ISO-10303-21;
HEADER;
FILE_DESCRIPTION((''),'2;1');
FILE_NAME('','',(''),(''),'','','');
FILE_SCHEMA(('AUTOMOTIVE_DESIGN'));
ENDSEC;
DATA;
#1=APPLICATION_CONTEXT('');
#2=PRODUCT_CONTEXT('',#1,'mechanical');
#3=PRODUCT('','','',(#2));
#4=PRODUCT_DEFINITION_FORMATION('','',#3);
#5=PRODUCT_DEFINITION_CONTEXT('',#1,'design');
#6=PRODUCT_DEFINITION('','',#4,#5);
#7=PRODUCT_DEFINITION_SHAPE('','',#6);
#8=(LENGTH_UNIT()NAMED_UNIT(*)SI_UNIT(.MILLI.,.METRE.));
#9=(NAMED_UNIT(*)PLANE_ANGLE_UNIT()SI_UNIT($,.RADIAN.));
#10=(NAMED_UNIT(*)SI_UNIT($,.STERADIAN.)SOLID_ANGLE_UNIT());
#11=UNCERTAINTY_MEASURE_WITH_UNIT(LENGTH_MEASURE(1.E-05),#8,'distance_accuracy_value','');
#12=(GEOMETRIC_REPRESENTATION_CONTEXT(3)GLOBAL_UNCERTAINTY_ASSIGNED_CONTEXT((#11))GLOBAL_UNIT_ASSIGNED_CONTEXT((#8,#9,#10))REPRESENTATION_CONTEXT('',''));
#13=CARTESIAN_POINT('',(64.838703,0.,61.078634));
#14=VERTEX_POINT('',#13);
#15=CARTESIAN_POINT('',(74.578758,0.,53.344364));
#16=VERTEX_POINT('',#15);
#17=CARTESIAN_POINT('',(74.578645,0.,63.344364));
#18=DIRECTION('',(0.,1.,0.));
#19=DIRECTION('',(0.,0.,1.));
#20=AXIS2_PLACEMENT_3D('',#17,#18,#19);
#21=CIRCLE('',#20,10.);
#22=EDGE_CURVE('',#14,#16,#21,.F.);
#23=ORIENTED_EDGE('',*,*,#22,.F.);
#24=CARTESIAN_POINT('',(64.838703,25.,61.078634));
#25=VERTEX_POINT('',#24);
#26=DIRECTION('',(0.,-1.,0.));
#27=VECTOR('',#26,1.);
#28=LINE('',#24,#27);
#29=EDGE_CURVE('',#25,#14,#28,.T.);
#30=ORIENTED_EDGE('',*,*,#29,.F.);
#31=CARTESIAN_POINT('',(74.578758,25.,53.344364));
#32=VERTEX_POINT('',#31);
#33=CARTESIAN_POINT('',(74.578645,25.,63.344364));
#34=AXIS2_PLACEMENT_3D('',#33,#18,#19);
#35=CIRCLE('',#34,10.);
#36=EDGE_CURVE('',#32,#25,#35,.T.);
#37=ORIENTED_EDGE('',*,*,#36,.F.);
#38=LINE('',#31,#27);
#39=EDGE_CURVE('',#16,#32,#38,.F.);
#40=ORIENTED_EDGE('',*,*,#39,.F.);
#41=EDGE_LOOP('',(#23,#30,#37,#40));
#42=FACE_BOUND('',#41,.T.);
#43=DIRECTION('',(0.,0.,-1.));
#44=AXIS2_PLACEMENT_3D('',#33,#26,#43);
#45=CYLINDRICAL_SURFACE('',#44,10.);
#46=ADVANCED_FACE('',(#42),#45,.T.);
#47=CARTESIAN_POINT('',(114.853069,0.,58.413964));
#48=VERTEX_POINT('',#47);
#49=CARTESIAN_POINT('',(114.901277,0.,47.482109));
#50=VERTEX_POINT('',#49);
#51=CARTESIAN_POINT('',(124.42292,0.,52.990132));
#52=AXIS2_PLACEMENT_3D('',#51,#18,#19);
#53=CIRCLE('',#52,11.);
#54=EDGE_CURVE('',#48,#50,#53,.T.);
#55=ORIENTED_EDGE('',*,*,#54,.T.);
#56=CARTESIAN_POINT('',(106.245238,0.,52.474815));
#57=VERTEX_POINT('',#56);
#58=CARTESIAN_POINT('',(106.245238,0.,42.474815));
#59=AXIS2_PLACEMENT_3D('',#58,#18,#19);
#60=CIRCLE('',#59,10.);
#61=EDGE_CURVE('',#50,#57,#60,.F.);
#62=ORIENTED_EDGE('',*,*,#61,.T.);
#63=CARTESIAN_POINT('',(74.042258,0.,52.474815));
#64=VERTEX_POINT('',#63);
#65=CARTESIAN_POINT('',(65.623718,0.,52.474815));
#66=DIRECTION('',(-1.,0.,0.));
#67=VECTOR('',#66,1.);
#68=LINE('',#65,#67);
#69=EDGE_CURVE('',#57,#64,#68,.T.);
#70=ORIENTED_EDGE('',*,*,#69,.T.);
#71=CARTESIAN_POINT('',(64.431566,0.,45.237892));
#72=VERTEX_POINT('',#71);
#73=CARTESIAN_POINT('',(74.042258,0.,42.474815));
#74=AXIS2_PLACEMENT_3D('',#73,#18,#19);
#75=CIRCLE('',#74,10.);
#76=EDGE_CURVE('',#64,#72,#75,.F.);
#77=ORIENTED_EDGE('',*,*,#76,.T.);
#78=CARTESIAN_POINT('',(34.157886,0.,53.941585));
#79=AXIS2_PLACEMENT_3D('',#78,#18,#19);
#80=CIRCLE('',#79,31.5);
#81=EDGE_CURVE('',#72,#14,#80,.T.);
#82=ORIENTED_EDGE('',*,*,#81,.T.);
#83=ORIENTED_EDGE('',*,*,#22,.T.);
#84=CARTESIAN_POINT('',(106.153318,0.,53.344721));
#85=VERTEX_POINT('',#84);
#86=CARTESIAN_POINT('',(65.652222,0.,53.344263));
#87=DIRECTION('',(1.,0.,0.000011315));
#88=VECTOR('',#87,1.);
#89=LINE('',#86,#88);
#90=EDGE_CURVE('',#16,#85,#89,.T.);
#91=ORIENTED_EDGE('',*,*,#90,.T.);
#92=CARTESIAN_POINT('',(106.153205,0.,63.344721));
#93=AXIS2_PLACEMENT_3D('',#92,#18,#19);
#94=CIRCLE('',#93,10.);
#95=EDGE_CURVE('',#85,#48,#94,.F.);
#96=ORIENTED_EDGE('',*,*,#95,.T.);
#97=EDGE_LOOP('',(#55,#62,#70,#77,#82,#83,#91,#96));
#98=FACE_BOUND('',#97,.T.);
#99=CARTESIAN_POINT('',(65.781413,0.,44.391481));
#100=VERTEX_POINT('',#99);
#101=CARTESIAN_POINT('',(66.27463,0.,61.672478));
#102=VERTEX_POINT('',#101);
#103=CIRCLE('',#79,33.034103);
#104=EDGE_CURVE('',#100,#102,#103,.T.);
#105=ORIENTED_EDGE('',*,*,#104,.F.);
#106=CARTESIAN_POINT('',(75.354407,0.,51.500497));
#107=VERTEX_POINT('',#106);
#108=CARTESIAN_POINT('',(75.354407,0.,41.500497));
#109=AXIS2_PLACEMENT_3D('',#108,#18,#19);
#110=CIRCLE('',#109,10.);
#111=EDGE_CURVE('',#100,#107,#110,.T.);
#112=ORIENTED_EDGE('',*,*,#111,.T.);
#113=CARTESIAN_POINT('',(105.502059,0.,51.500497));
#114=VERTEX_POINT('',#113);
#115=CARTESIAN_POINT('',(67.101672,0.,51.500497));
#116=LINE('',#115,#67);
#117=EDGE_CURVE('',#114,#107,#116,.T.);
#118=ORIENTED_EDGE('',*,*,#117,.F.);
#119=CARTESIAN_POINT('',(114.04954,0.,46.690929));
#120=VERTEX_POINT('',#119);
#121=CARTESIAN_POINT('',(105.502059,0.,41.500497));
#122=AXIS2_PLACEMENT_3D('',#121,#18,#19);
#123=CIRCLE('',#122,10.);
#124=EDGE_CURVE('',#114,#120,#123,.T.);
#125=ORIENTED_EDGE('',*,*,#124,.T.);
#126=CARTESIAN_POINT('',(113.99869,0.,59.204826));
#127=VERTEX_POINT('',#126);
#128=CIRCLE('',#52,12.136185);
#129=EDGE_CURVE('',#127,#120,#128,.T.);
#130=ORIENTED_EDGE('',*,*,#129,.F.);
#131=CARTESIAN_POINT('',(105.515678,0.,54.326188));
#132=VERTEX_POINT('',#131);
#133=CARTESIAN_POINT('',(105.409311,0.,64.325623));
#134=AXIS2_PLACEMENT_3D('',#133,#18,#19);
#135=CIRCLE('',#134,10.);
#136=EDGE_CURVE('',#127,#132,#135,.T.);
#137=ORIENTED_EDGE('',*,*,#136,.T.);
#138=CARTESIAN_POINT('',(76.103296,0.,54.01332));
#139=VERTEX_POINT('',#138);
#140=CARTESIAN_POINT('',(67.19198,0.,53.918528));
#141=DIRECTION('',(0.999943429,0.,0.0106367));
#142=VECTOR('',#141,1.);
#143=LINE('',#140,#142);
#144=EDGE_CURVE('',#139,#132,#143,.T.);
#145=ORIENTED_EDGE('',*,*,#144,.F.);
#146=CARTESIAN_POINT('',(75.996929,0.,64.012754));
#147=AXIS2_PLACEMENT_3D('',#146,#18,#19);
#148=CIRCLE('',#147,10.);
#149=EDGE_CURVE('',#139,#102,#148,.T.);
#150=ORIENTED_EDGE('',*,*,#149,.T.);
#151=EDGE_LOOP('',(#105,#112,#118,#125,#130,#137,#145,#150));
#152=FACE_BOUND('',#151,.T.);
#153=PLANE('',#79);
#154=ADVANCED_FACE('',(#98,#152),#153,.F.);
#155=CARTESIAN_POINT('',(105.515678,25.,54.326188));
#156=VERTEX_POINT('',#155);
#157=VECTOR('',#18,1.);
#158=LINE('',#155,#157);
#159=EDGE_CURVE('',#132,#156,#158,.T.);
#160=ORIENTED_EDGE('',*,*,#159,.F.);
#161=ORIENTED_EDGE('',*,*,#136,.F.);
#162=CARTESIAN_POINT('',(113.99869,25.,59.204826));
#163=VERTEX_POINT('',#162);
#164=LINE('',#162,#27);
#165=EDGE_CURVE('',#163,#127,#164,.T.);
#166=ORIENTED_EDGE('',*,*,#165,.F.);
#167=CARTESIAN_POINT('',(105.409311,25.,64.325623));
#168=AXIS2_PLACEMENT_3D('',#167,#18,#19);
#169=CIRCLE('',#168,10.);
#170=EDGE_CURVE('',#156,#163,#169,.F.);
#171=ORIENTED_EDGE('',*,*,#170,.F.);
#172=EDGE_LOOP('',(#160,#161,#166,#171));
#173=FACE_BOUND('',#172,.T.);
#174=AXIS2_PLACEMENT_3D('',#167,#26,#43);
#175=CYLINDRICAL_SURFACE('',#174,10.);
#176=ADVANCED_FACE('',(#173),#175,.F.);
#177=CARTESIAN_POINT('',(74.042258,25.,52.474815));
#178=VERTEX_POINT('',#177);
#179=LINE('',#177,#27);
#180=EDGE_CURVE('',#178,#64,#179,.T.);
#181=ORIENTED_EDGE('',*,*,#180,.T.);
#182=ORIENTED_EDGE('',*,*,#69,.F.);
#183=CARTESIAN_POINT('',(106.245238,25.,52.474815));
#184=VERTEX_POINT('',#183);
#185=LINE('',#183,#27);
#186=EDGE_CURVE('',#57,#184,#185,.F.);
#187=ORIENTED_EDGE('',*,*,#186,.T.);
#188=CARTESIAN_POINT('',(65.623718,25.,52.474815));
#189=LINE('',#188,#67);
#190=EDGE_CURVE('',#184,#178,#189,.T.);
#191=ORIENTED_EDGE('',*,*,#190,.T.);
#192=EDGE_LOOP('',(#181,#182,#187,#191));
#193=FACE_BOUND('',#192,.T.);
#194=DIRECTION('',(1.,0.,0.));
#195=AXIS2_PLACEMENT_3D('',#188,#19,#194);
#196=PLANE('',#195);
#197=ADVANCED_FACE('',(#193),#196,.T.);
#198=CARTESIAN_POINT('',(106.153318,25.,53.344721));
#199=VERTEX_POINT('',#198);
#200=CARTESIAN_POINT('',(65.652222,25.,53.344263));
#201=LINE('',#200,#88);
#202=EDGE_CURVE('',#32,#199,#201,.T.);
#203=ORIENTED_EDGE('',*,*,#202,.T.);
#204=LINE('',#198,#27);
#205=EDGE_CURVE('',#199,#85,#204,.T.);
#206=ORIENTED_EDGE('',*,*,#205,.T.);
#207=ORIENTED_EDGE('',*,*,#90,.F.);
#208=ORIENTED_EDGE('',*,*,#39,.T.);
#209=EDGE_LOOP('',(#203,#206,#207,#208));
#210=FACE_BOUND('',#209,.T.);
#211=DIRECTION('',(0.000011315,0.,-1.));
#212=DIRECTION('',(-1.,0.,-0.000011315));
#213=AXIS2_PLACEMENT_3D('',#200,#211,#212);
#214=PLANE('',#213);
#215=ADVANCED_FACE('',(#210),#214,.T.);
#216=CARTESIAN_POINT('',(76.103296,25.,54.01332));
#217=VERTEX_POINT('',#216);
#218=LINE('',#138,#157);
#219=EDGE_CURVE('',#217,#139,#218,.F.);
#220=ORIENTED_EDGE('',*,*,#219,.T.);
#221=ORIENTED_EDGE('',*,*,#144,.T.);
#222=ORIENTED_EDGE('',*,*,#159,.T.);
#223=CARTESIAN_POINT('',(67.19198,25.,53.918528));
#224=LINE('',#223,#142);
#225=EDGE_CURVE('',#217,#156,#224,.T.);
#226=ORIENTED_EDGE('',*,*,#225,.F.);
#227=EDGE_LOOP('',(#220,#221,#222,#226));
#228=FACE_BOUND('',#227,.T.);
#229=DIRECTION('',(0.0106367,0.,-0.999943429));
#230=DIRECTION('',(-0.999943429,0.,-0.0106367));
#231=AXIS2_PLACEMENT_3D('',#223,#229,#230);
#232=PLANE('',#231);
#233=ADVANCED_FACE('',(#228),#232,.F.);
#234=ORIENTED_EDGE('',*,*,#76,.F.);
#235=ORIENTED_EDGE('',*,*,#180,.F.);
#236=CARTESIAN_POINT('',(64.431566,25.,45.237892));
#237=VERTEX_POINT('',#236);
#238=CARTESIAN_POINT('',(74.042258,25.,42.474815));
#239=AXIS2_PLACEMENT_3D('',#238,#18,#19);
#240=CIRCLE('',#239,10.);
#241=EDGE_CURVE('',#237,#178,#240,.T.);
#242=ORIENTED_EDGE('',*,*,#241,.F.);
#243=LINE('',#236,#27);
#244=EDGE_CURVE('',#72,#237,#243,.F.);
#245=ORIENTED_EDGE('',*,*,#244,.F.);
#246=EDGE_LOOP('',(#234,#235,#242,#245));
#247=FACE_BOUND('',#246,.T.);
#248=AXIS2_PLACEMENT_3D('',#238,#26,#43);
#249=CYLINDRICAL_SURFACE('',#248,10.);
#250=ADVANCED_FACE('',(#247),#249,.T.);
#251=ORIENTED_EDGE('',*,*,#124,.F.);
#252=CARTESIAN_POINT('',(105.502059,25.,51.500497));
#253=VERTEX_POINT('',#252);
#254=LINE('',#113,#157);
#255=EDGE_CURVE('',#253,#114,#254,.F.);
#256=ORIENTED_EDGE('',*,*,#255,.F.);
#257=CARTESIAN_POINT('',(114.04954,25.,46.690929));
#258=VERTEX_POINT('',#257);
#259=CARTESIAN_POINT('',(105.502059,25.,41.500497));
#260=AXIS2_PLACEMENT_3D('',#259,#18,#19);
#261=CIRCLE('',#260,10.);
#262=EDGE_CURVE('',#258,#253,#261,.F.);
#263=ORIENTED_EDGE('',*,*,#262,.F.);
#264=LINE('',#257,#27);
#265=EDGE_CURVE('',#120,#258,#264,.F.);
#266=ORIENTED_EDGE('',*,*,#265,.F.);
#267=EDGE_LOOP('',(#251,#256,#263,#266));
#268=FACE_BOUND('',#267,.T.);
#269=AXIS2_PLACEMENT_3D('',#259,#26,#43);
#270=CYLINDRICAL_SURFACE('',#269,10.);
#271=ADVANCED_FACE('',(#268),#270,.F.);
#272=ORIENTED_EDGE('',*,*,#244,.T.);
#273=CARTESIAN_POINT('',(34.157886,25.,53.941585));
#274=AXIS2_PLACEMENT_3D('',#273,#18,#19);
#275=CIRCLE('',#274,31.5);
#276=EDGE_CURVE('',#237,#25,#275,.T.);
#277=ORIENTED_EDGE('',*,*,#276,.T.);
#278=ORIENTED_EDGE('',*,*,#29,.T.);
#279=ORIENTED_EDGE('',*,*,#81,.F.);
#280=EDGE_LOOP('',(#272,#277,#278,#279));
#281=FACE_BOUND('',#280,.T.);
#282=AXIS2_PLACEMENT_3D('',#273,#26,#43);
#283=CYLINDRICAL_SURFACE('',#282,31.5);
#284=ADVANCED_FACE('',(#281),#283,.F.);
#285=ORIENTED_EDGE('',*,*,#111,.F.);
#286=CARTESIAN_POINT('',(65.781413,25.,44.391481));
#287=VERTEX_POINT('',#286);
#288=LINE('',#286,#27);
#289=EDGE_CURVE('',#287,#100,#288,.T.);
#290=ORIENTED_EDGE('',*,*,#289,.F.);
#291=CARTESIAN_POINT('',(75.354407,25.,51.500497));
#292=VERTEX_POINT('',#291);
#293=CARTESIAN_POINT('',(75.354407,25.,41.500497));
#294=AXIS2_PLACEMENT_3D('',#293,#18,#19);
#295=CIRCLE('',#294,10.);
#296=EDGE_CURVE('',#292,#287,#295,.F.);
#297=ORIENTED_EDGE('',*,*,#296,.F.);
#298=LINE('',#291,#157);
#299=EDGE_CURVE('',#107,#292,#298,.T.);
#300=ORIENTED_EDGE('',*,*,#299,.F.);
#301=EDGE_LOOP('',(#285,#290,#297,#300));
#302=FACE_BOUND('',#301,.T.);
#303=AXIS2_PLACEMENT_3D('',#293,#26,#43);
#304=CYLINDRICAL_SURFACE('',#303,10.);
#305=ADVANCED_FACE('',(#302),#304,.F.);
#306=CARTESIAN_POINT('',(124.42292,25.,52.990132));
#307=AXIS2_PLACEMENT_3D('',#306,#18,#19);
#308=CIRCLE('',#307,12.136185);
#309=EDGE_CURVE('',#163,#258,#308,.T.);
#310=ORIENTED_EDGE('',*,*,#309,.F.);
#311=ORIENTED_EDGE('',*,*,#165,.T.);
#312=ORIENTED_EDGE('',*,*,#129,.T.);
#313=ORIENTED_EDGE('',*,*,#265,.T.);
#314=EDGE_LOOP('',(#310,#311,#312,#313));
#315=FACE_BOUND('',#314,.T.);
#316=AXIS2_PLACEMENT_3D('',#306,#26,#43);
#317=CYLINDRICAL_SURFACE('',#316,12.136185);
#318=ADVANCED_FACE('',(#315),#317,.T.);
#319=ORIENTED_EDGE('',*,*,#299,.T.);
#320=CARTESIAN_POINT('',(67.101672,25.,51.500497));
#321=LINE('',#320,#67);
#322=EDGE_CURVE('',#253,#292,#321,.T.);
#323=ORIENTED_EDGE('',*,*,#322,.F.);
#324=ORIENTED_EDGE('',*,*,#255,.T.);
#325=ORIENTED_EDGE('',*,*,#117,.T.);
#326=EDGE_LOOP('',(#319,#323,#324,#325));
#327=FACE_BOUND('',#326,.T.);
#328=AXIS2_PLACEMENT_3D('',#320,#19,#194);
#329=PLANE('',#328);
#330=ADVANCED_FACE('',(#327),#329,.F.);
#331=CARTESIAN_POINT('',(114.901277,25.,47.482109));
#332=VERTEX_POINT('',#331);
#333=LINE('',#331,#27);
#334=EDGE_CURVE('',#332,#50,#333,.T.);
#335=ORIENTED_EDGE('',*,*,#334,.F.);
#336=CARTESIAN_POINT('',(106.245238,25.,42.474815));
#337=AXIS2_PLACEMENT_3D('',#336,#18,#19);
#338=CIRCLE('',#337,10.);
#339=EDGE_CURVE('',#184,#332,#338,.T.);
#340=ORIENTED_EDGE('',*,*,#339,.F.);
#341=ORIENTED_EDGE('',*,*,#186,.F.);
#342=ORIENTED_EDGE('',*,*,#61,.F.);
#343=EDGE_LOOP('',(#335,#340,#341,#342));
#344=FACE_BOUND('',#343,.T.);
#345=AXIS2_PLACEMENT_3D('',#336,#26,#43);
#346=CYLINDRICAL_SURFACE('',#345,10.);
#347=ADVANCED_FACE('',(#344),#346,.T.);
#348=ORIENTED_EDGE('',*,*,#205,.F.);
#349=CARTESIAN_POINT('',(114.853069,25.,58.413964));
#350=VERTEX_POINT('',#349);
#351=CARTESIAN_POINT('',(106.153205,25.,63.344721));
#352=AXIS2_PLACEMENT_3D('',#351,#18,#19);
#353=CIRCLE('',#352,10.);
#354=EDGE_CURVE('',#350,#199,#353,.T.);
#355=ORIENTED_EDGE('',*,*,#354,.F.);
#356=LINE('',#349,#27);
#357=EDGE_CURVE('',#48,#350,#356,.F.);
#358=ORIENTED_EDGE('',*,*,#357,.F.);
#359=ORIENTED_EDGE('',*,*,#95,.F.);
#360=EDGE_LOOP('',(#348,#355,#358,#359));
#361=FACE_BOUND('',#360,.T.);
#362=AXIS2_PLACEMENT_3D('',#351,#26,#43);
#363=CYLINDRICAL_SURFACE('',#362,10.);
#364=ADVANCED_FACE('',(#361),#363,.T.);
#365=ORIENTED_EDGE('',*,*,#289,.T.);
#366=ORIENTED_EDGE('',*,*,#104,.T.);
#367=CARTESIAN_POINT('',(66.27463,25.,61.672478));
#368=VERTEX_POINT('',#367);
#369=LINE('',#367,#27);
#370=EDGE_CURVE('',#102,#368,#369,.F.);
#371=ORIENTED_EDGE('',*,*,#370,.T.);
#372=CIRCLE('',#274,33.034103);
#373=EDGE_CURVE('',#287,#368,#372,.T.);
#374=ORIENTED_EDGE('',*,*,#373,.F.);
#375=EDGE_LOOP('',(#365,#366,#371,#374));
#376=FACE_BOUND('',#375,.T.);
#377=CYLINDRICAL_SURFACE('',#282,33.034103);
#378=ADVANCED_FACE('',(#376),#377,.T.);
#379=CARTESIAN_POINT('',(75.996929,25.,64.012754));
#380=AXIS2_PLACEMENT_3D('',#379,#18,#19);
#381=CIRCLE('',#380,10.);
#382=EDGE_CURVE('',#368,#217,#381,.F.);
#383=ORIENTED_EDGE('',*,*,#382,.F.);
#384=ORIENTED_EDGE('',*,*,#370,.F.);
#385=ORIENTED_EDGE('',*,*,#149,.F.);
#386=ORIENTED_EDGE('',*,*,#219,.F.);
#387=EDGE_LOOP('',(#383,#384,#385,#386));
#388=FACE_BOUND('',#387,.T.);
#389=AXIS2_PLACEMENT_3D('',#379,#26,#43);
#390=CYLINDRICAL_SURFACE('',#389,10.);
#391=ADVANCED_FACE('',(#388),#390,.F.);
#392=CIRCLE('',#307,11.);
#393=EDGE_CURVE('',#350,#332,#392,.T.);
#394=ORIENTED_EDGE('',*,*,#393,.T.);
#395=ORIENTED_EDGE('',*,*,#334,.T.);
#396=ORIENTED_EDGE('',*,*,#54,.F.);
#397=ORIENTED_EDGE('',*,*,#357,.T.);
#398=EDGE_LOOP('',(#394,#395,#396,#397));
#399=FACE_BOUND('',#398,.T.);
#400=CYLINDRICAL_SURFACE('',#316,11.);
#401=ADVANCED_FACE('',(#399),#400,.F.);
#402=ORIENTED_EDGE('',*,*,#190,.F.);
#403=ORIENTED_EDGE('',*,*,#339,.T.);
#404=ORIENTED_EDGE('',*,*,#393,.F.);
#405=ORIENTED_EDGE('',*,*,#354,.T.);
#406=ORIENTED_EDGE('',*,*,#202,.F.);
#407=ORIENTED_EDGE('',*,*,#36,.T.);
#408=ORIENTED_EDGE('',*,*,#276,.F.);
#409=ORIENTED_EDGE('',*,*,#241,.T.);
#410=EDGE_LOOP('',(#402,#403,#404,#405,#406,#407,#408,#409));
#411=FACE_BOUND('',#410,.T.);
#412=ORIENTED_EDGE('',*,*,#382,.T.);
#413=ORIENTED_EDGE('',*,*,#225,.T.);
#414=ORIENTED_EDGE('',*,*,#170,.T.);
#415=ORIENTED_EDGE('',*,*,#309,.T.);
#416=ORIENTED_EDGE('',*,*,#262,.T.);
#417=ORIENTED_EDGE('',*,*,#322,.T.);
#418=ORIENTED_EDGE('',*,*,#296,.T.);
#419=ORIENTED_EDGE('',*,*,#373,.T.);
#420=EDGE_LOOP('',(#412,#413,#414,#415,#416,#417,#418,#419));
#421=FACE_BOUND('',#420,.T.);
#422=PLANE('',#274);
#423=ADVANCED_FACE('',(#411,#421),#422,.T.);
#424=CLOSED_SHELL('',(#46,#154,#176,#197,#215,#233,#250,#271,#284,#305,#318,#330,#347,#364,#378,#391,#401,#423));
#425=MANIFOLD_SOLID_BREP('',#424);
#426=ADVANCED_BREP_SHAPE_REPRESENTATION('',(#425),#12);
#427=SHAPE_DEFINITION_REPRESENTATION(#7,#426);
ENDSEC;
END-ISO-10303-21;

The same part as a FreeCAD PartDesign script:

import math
import FreeCAD as App
import Part
import Sketcher

V = App.Vector


def edges_at(feature, points):
    """Names of the edges that pass closest to the given points."""
    edges = feature.Shape.Edges
    near = lambda p: min(range(len(edges)), key=lambda i: edges[i].distToShape(Part.Vertex(*p))[0])
    return sorted({f"Edge{near(p) + 1}" for p in points})

doc = App.newDocument("Part")
body = doc.addObject("PartDesign::Body", "Body")

sketch1 = body.newObject("Sketcher::SketchObject", "Sketch")
sketch1.AttachmentSupport = (doc.getObject("XZ_Plane"), [""])
sketch1.MapMode = "FlatFace"
sketch1.addGeometry([
    Part.LineSegment(V(112.4, 51.5, 0), V(67.1, 51.5, 0)),
    Part.ArcOfCircle(Part.Circle(V(34.2, 53.9, 0), V(0, 0, 1), 33), math.radians(0), math.radians(356)),
    Part.LineSegment(V(67.2, 53.9, 0), V(112.4, 54.4, 0)),
    Part.ArcOfCircle(Part.Circle(V(124.4, 53, 0), V(0, 0, 1), 12.1), math.radians(-173), math.radians(173)),
    Part.LineSegment(V(65.6, 52.5, 0), V(113.4, 52.5, 0)),
    Part.ArcOfCircle(Part.Circle(V(124.4, 53, 0), V(0, 0, 1), 11), math.radians(-177), math.radians(178)),
    Part.LineSegment(V(113.4, 53.3, 0), V(65.7, 53.3, 0)),
    Part.ArcOfCircle(Part.Circle(V(34.2, 53.9, 0), V(0, 0, 1), 31.5), math.radians(-1), math.radians(357)),
], False)
sketch1.addConstraint([
    Sketcher.Constraint("Coincident", 0, 2, 1, 2),
    Sketcher.Constraint("Coincident", 1, 1, 2, 1),
    Sketcher.Constraint("Coincident", 2, 2, 3, 2),
    Sketcher.Constraint("Coincident", 3, 1, 0, 1),
    Sketcher.Constraint("Coincident", 4, 2, 5, 1),
    Sketcher.Constraint("Coincident", 5, 2, 6, 1),
    Sketcher.Constraint("Coincident", 6, 2, 7, 1),
    Sketcher.Constraint("Coincident", 7, 2, 4, 1),
    Sketcher.Constraint("Horizontal", 0),
    Sketcher.Constraint("Horizontal", 4),
    Sketcher.Constraint("Coincident", 5, 3, 3, 3),
    Sketcher.Constraint("Coincident", 7, 3, 1, 3),
    Sketcher.Constraint("Radius", 5, 11.0),
    Sketcher.Constraint("Radius", 7, 31.5),
    Sketcher.Constraint("Radius", 1, 33.034103),
    Sketcher.Constraint("Radius", 3, 12.136185),
    Sketcher.Constraint("DistanceX", 0, 2, 0, 1, 45.276832),
    Sketcher.Constraint("DistanceX", 4, 1, 4, 2, 47.811279),
    Sketcher.Constraint("DistanceX", -1, 1, 2, 2, 112.368799),
    Sketcher.Constraint("DistanceY", 7, 3, 2, 2, 0.457502),
    Sketcher.Constraint("DistanceX", 2, 2, 4, 2, 1.066198),
    Sketcher.Constraint("DistanceX", -1, 1, 3, 3, 124.42292),
    Sketcher.Constraint("DistanceY", -1, 1, 3, 3, 52.990132),
    Sketcher.Constraint("DistanceX", -1, 1, 5, 2, 113.428639),
    Sketcher.Constraint("DistanceX", -1, 1, 6, 2, 65.652222),
    Sketcher.Constraint("DistanceY", 0, 2, 1, 1, 2.41803),
])
pad1 = body.newObject("PartDesign::Pad", "Pad")
pad1.Profile = sketch1
pad1.Length = 25
pad1.Reversed = True
doc.recompute()

fillet = body.newObject("PartDesign::Fillet", "Fillet")
fillet.Base = (pad1, edges_at(pad1, [(67.192, 12.5, 53.919)]))
fillet.Radius = 10
doc.recompute()

fillet2 = body.newObject("PartDesign::Fillet", "Fillet001")
fillet2.Base = (fillet, edges_at(fillet, [(65.652, 12.5, 53.344)]))
fillet2.Radius = 10
doc.recompute()

fillet3 = body.newObject("PartDesign::Fillet", "Fillet002")
fillet3.Base = (fillet2, edges_at(fillet2, [(65.624, 12.5, 52.475), (67.102, 12.5, 51.5)]))
fillet3.Radius = 10
doc.recompute()

fillet4 = body.newObject("PartDesign::Fillet", "Fillet003")
fillet4.Base = (fillet3, edges_at(fillet3, [
    (113.429, 12.5, 53.345),
    (113.435, 12.5, 52.475),
    (112.379, 12.5, 51.5),
    (112.369, 12.5, 54.399),
]))
fillet4.Radius = 10

doc.recompute()
